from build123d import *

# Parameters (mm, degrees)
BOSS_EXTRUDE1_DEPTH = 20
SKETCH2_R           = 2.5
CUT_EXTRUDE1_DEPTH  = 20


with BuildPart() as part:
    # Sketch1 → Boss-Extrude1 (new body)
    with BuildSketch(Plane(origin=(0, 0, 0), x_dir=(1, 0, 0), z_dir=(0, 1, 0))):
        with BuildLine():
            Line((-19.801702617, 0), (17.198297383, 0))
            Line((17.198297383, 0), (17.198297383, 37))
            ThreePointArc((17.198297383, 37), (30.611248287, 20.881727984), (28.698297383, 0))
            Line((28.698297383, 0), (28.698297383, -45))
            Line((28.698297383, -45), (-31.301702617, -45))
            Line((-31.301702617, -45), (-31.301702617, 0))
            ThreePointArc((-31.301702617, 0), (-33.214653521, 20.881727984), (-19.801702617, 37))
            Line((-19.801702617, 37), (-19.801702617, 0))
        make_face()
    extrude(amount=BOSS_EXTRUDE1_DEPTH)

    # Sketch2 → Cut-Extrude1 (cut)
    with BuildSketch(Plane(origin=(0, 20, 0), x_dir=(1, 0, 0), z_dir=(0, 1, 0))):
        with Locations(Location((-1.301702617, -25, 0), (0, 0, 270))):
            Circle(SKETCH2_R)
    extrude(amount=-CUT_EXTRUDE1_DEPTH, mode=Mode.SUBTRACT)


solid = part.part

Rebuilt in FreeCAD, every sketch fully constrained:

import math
import FreeCAD as App
import Part
import Sketcher

V = App.Vector
Q = App.Units.Quantity

doc = App.newDocument("Part")
body = doc.addObject("PartDesign::Body", "Body")

sketch1 = body.newObject("Sketcher::SketchObject", "Sketch")
sketch1.AttachmentSupport = (doc.getObject("XZ_Plane"), [""])
sketch1.MapMode = "FlatFace"
sketch1.addGeometry([
    Part.LineSegment(V(17.198297, 0, 0), V(-19.801703, 0, 0)),
    Part.LineSegment(V(-19.801703, 0, 0), V(-19.801703, -37, 0)),
    Part.ArcOfCircle(Part.Circle(V(-7.051703, -12.75, 0), V(0, 0, 1), 27.397536), math.radians(152.265809), math.radians(242.265809)),
    Part.LineSegment(V(-31.301703, 0, 0), V(-31.301703, 45, 0)),
    Part.LineSegment(V(-31.301703, 45, 0), V(28.698297, 45, 0)),
    Part.LineSegment(V(28.698297, 45, 0), V(28.698297, 0, 0)),
    Part.ArcOfCircle(Part.Circle(V(4.448297, -12.75, 0), V(0, 0, 1), 27.397536), math.radians(-62.265809), math.radians(27.734191)),
    Part.LineSegment(V(17.198297, -37, 0), V(17.198297, 0, 0)),
], False)
sketch1.addConstraint([
    Sketcher.Constraint("Coincident", 0, 2, 1, 1),
    Sketcher.Constraint("Coincident", 1, 2, 2, 2),
    Sketcher.Constraint("Coincident", 2, 1, 3, 1),
    Sketcher.Constraint("Coincident", 3, 2, 4, 1),
    Sketcher.Constraint("Coincident", 4, 2, 5, 1),
    Sketcher.Constraint("Coincident", 5, 2, 6, 2),
    Sketcher.Constraint("Coincident", 6, 1, 7, 1),
    Sketcher.Constraint("Coincident", 7, 2, 0, 1),
    Sketcher.Constraint("Horizontal", 0),
    Sketcher.Constraint("Vertical", 1),
    Sketcher.Constraint("Vertical", 3),
    Sketcher.Constraint("Horizontal", 4),
    Sketcher.Constraint("Vertical", 5),
    Sketcher.Constraint("Vertical", 7),
    Sketcher.Constraint("Equal", 2, 6),
    Sketcher.Constraint("PointOnObject", 0, 2, -1),
    Sketcher.Constraint("PointOnObject", 2, 1, -1),
    Sketcher.Constraint("PointOnObject", 5, 2, -1),
    Sketcher.Constraint("Horizontal", 2, 3, 6, 3),
    Sketcher.Constraint("Horizontal", 1, 2, 6, 1),
    Sketcher.Constraint("Equal", 0, 1),
    Sketcher.Constraint("DistanceX", 0, 2, 0, 1, Q("37 mm")),
    Sketcher.Constraint("DistanceX", 4, 1, 4, 2, Q("60 mm")),
    Sketcher.Constraint("DistanceY", 3, 1, 3, 2, Q("45 mm")),
    Sketcher.Constraint("DistanceX", 2, 3, 6, 3, Q("11.5 mm")),
    Sketcher.Constraint("DistanceX", 2, 3, -1, 1, Q("7.051703 mm")),
])
pad1 = body.newObject("PartDesign::Pad", "Pad")
pad1.Profile = sketch1
pad1.Length = 20
pad1.Reversed = True

sketch2 = body.newObject("Sketcher::SketchObject", "Sketch001")
sketch2.AttachmentSupport = (doc.getObject("XZ_Plane"), [""])
sketch2.MapMode = "FlatFace"
sketch2.AttachmentOffset = App.Placement(V(0, 0, -20), App.Rotation())
sketch2.addGeometry(Part.Circle(V(-1.301703, 25, 0), V(0, 0, 1), 2.5), False)
sketch2.addConstraint([
    Sketcher.Constraint("Diameter", 0, Q("5 mm")),
    Sketcher.Constraint("DistanceY", -1, 1, 0, 3, Q("25 mm")),
    Sketcher.Constraint("DistanceX", 0, 3, -1, 1, Q("1.301703 mm")),
])
pocket1 = body.newObject("PartDesign::Pocket", "Pocket")
pocket1.Profile = sketch2
pocket1.Length = 20
pocket1.Reversed = True

doc.recompute()
